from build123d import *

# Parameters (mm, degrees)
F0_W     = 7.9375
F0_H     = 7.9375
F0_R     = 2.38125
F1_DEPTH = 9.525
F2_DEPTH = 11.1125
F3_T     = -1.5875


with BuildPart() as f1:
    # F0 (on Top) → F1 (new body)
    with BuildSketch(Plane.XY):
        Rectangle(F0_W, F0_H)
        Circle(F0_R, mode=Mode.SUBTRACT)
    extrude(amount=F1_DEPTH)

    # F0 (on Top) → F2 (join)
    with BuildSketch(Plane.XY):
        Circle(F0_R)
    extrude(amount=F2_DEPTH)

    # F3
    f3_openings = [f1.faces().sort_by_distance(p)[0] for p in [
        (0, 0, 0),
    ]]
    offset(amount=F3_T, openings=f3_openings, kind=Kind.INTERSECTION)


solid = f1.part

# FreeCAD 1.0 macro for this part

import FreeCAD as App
import Part
import Sketcher
Q = App.Units.Quantity


def faces_at(feature, points):
    """Names of the faces that lie closest to the given points."""
    faces = feature.Shape.Faces
    near = lambda p: min(range(len(faces)), key=lambda i: faces[i].distToShape(Part.Vertex(*p))[0])
    return sorted({f"Face{near(p) + 1}" for p in points})


def add_polygon(sketch, points):
    """Adds a closed chain of lines whose ends are joined by coincident constraints."""
    first, n = sketch.GeometryCount, len(points)
    for a, b in zip(points, points[1:] + points[:1]):
        sketch.addGeometry(Part.LineSegment(App.Vector(*a, 0), App.Vector(*b, 0)), False)
    for i in range(n):
        sketch.addConstraint(Sketcher.Constraint("Coincident", first + i, 2, first + (i + 1) % n, 1))

doc = App.newDocument("Part")
body = doc.addObject("PartDesign::Body", "Body")

sketch1 = body.newObject("Sketcher::SketchObject", "Sketch")
sketch1.AttachmentSupport = (doc.getObject("XY_Plane"), [""])
sketch1.MapMode = "FlatFace"
add_polygon(sketch1, [(-4, 4), (-4, -4), (4, -4), (4, 4)])
sketch1.addGeometry(Part.Circle(App.Vector(0, 0, 0), App.Vector(0, 0, 1), 2.4), False)
sketch1.addConstraint(Sketcher.Constraint("Vertical", 0))
sketch1.addConstraint(Sketcher.Constraint("Horizontal", 1))
sketch1.addConstraint(Sketcher.Constraint("Vertical", 2))
sketch1.addConstraint(Sketcher.Constraint("Horizontal", 3))
sketch1.addConstraint(Sketcher.Constraint("Coincident", 4, 3, -1, 1))
sketch1.addConstraint(Sketcher.Constraint("Symmetric", 0, 2, 2, 2, -1, 1))
sketch1.addConstraint(Sketcher.Constraint("Equal", 3, 0))
sketch1.addConstraint(Sketcher.Constraint("Diameter", 4, Q("0.1875 in")))
sketch1.addConstraint(Sketcher.Constraint("DistanceX", 1, 1, 1, 2, Q("0.3125 in")))
pad1 = body.newObject("PartDesign::Pad", "Pad")
pad1.Profile = sketch1
pad1.Length = Q("0.375 in")

sketch2 = body.newObject("Sketcher::SketchObject", "Sketch001")
sketch2.AttachmentSupport = (doc.getObject("XY_Plane"), [""])
sketch2.MapMode = "FlatFace"
sketch2.addGeometry(Part.Circle(App.Vector(0, 0, 0), App.Vector(0, 0, 1), 2.4), False)
sketch2.addConstraint(Sketcher.Constraint("Coincident", 0, 3, -1, 1))
sketch2.addConstraint(Sketcher.Constraint("Diameter", 0, Q("0.1875 in")))
pad2 = body.newObject("PartDesign::Pad", "Pad001")
pad2.Profile = sketch2
pad2.Length = Q("0.4375 in")
doc.recompute()

thickness = body.newObject("PartDesign::Thickness", "Thickness")
thickness.Base = (pad2, faces_at(pad2, [(0, 0, 0)]))
thickness.Value = Q("0.0625 in")
thickness.Reversed = True
thickness.Join = "Intersection"

doc.recompute()
